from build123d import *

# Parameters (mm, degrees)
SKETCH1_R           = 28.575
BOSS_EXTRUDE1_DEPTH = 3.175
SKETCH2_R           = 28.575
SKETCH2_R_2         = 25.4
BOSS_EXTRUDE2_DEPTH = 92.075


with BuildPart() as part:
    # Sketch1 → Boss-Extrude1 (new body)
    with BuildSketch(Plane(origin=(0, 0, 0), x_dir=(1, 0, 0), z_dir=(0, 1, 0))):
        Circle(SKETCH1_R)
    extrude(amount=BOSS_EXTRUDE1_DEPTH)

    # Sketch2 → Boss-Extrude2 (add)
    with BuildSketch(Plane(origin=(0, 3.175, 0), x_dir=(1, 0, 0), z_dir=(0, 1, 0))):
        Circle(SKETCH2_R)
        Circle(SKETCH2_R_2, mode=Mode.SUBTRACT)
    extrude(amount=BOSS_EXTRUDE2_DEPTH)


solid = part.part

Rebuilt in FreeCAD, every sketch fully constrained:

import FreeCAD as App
import Part
import Sketcher

V = App.Vector
Q = App.Units.Quantity

doc = App.newDocument("Part")
body = doc.addObject("PartDesign::Body", "Body")

sketch1 = doc.addObject("Sketcher::SketchObject", "Sketch")
body.addObject(sketch1)
sketch1.AttachmentSupport = (doc.XZ_Plane, [""])
sketch1.MapMode = "FlatFace"
sketch1.addGeometry(Part.Circle(V(0, 0, 0), V(0, 0, 1), 29), False)
sketch1.addConstraint([
    Sketcher.Constraint("Coincident", 0, 3, -1, 1),
    Sketcher.Constraint("Diameter", 0, Q("2.25 in")),
])
pad1 = doc.addObject("PartDesign::Pad", "Pad")
body.addObject(pad1)
pad1.Profile = sketch1
pad1.Length = Q("0.125 in")
pad1.Reversed = True

sketch2 = doc.addObject("Sketcher::SketchObject", "Sketch001")
body.addObject(sketch2)
sketch2.AttachmentSupport = (doc.XZ_Plane, [""])
sketch2.MapMode = "FlatFace"
sketch2.AttachmentOffset = App.Placement(V(0, 0, -0.125 * 25.4), App.Rotation())
sketch2.addGeometry([
    Part.Circle(V(0, 0, 0), V(0, 0, 1), 29),
    Part.Circle(V(0, 0, 0), V(0, 0, 1), 25),
], False)
sketch2.addConstraint([
    Sketcher.Constraint("Coincident", 0, 3, -1, 1),
    Sketcher.Constraint("Coincident", 1, 3, -1, 1),
    Sketcher.Constraint("Diameter", 1, Q("2 in")),
    Sketcher.Constraint("Diameter", 0, Q("2.25 in")),
])
pad2 = doc.addObject("PartDesign::Pad", "Pad001")
body.addObject(pad2)
pad2.Profile = sketch2
pad2.Length = Q("3.625 in")
pad2.Reversed = True

doc.recompute()
